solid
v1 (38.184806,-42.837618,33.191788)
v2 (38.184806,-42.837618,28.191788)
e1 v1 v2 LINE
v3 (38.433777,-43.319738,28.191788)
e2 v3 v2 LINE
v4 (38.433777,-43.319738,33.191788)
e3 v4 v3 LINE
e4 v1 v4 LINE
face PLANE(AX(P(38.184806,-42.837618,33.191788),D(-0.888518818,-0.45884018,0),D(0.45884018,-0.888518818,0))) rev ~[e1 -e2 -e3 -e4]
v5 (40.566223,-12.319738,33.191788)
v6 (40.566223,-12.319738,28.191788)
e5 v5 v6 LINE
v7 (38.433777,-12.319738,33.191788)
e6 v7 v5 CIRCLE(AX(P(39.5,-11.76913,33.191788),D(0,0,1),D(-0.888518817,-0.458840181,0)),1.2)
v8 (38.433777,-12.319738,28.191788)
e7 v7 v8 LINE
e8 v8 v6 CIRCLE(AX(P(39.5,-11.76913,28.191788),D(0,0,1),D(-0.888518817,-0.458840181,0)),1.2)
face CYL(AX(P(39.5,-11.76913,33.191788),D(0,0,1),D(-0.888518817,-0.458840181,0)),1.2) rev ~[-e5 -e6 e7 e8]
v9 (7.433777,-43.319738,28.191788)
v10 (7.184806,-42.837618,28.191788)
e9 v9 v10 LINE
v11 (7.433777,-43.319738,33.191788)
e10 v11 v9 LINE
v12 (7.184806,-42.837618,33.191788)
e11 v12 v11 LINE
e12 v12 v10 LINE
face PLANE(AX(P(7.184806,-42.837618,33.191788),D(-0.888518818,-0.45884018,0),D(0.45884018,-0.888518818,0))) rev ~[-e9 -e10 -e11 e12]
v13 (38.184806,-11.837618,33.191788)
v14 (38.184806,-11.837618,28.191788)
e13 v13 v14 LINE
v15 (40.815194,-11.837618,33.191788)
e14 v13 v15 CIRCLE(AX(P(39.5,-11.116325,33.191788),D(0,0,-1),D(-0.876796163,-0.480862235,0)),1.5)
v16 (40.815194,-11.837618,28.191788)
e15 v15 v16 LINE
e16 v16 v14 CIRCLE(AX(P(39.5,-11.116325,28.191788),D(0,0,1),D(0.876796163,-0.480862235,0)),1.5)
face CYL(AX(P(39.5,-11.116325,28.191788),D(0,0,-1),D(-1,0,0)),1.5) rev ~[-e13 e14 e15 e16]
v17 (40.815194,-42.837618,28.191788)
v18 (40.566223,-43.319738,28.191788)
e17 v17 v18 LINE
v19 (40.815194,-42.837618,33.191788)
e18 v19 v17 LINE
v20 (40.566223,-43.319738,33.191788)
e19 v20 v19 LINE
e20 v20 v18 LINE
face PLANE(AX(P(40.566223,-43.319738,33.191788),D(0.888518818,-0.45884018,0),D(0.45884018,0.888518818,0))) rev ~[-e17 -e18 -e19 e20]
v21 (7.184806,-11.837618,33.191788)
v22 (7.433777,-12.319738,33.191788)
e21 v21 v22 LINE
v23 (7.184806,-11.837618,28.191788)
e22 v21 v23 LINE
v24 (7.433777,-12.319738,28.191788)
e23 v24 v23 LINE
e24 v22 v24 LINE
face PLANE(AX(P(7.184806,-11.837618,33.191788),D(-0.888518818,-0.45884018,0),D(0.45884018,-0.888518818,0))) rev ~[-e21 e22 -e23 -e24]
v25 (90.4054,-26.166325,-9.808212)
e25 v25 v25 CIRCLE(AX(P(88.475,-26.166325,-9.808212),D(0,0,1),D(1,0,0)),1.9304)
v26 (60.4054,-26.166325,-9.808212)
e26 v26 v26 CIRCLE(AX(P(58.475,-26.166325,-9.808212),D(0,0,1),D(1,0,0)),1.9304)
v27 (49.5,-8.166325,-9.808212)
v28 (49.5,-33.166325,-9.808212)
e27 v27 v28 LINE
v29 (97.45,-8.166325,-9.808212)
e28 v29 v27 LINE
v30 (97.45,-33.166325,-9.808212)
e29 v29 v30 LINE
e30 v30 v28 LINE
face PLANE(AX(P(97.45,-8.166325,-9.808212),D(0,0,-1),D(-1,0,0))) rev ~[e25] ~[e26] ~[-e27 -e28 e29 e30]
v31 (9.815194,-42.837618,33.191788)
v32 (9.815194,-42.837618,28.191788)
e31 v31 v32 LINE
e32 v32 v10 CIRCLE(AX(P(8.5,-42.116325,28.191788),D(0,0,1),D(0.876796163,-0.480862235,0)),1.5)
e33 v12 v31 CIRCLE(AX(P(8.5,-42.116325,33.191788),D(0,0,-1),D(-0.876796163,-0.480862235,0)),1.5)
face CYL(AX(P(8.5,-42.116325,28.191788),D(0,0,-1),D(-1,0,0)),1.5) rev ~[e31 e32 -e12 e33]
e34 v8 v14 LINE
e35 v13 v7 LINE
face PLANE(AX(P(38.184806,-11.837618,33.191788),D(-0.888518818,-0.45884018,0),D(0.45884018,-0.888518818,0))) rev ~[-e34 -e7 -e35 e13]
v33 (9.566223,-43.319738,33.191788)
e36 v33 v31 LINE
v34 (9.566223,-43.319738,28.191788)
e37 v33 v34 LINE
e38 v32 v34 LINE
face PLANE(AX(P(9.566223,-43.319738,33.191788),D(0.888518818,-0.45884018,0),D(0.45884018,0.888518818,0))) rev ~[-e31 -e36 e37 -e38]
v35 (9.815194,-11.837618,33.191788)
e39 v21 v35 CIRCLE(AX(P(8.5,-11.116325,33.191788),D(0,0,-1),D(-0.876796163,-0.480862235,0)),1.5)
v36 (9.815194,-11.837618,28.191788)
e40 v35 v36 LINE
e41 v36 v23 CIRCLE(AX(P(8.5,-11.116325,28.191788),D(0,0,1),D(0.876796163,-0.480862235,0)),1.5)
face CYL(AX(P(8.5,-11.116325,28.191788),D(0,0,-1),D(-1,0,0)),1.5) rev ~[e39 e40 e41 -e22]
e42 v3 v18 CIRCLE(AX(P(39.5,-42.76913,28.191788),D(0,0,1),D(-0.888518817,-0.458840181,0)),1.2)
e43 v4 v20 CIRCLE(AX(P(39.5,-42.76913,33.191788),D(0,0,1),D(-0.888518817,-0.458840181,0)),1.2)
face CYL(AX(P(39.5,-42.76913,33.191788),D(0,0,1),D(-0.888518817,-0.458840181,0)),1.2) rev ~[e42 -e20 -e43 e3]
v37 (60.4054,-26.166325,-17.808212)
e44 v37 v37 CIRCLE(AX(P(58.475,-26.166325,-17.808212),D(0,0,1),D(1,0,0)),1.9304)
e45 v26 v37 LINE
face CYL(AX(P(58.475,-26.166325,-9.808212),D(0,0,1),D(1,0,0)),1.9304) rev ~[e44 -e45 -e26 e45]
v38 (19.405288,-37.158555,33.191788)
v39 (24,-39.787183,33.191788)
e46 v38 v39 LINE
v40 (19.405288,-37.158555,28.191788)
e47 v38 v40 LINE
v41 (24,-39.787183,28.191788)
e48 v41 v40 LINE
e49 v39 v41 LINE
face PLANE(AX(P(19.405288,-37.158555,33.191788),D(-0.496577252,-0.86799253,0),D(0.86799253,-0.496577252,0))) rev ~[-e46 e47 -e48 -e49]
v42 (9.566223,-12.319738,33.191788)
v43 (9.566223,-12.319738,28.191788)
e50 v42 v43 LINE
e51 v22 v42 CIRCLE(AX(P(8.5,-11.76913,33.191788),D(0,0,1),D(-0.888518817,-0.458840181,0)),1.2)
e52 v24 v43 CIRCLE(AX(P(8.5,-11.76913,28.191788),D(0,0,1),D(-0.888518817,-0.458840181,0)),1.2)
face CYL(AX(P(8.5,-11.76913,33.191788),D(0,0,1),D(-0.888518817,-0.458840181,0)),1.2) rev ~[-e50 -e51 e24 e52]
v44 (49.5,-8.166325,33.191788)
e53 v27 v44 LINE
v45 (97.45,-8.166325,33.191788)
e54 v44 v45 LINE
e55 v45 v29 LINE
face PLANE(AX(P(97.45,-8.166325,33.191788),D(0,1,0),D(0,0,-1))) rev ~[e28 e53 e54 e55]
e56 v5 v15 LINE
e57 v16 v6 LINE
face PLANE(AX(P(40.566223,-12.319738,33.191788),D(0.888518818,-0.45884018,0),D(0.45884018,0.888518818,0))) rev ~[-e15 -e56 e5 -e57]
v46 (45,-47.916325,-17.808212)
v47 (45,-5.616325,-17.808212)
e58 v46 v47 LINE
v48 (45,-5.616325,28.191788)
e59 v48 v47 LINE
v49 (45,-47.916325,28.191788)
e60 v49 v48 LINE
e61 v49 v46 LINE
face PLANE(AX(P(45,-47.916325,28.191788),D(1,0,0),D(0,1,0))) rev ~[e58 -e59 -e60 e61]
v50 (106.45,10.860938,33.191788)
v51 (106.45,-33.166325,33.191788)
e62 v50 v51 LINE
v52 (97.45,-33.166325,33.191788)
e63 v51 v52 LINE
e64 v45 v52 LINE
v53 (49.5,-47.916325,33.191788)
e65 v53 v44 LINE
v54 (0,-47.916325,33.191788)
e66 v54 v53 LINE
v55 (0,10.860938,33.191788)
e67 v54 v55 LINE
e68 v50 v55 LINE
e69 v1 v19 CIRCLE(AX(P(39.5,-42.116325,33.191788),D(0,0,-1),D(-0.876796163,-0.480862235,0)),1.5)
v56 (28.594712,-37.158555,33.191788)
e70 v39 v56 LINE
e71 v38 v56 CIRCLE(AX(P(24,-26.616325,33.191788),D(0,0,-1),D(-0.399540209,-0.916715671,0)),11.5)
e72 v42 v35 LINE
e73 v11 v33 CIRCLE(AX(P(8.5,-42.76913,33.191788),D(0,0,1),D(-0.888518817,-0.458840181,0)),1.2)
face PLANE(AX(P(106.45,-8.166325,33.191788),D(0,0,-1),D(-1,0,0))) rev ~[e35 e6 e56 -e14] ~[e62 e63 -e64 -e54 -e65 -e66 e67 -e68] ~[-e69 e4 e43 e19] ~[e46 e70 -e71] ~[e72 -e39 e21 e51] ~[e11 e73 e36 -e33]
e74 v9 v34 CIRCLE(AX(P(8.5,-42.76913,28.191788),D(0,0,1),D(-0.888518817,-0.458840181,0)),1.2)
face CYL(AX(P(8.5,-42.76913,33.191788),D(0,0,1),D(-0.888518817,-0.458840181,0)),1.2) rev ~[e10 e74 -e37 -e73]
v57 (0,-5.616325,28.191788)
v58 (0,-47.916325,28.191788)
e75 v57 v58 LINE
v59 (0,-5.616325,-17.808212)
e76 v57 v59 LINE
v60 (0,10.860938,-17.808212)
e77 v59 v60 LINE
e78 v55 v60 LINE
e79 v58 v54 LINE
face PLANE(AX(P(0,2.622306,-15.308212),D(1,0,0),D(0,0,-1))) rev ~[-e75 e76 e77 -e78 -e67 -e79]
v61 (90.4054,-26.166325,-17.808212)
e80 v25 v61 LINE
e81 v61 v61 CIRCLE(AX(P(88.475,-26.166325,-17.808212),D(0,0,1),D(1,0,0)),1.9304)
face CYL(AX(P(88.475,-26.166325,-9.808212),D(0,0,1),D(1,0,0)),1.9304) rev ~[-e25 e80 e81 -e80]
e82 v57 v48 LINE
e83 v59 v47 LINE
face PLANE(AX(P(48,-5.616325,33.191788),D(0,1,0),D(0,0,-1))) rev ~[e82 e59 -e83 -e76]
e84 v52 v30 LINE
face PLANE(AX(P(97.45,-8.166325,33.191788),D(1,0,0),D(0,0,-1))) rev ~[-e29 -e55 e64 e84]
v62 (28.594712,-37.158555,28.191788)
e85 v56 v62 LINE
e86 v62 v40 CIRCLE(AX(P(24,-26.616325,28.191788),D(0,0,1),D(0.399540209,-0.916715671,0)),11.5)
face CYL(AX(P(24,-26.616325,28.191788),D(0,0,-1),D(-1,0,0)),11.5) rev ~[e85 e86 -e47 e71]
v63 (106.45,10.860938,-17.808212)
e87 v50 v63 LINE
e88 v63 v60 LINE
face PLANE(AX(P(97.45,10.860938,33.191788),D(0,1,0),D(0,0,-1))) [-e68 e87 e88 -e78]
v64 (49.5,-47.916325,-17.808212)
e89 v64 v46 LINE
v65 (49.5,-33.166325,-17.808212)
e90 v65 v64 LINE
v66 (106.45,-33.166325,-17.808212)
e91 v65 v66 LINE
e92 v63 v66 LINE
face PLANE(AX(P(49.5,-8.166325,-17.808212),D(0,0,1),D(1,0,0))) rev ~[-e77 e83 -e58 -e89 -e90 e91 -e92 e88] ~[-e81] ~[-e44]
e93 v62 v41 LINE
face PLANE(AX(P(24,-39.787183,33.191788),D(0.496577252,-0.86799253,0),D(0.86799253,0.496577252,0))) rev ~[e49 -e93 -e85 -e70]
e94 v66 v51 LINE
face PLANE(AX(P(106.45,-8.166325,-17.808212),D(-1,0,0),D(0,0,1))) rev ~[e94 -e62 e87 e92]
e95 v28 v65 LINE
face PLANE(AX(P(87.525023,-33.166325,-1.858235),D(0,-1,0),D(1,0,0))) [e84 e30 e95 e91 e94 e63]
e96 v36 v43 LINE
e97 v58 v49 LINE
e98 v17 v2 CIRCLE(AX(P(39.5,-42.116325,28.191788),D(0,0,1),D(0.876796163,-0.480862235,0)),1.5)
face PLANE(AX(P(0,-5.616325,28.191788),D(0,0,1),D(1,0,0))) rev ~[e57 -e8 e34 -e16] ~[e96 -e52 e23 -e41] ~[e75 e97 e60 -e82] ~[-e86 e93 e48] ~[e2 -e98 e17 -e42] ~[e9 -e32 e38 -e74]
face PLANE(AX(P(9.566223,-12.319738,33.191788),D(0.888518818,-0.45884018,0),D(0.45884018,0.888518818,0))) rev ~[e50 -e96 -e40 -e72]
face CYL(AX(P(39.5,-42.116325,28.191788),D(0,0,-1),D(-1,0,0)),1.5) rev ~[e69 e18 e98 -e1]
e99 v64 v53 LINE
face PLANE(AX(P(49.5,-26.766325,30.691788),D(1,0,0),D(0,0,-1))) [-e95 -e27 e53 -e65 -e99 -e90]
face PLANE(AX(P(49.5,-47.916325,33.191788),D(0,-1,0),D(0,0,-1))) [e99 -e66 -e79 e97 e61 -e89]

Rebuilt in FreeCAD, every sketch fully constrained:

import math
import FreeCAD as App
import Part
import Sketcher
from FreeCAD import Vector


def edges_at(feature, points):
    """Names of the edges that pass closest to the given points."""
    edges = feature.Shape.Edges
    near = lambda p: min(range(len(edges)), key=lambda i: edges[i].distToShape(Part.Vertex(*p))[0])
    return sorted({f"Edge{near(p) + 1}" for p in points})

doc = App.newDocument("Part")
body = doc.addObject("PartDesign::Body", "Body")

# Sketch on XY plane
sketch1 = body.newObject("Sketcher::SketchObject", "Sketch")
sketch1.AttachmentSupport = (doc.getObject("XY_Plane"), [""])
sketch1.MapMode = "FlatFace"
sketch1.addGeometry(Part.LineSegment(Vector(0, 53, 0), Vector(0, 0, 0)), False)
sketch1.addGeometry(Part.LineSegment(Vector(0, 0, 0), Vector(48, 0, 0)), False)
sketch1.addGeometry(Part.LineSegment(Vector(48, 0, 0), Vector(48, 53, 0)), False)
sketch1.addGeometry(Part.LineSegment(Vector(48, 53, 0), Vector(0, 53, 0)), False)
sketch1.addConstraint(Sketcher.Constraint("Coincident", 0, 2, 1, 1))
sketch1.addConstraint(Sketcher.Constraint("Coincident", 1, 2, 2, 1))
sketch1.addConstraint(Sketcher.Constraint("Coincident", 2, 2, 3, 1))
sketch1.addConstraint(Sketcher.Constraint("Coincident", 3, 2, 0, 1))
sketch1.addConstraint(Sketcher.Constraint("Vertical", 0))
sketch1.addConstraint(Sketcher.Constraint("Horizontal", 1))
sketch1.addConstraint(Sketcher.Constraint("Vertical", 2))
sketch1.addConstraint(Sketcher.Constraint("Horizontal", 3))
sketch1.addConstraint(Sketcher.Constraint("Coincident", 0, 2, -1, 1))
sketch1.addConstraint(Sketcher.Constraint("DistanceX", 1, 1, 1, 2, 48.0))
sketch1.addConstraint(Sketcher.Constraint("DistanceY", 0, 2, 0, 1, 53.0))
pad1 = body.newObject("PartDesign::Pad", "Pad")
pad1.Profile = sketch1
pad1.Length = 10

# Sketch on XY plane
sketch2 = body.newObject("Sketcher::SketchObject", "Sketch001")
sketch2.AttachmentSupport = (doc.getObject("XY_Plane"), [""])
sketch2.MapMode = "FlatFace"
sketch2.addGeometry(Part.LineSegment(Vector(48, 0, 0), Vector(48, -6, 0)), False)
sketch2.addGeometry(Part.LineSegment(Vector(48, -6, 0), Vector(0, -6, 0)), False)
sketch2.addGeometry(Part.LineSegment(Vector(0, -6, 0), Vector(0, 0, 0)), False)
sketch2.addGeometry(Part.LineSegment(Vector(0, 0, 0), Vector(48, 0, 0)), False)
sketch2.addConstraint(Sketcher.Constraint("Coincident", 0, 2, 1, 1))
sketch2.addConstraint(Sketcher.Constraint("Coincident", 1, 2, 2, 1))
sketch2.addConstraint(Sketcher.Constraint("Coincident", 2, 2, 3, 1))
sketch2.addConstraint(Sketcher.Constraint("Coincident", 3, 2, 0, 1))
sketch2.addConstraint(Sketcher.Constraint("Vertical", 0))
sketch2.addConstraint(Sketcher.Constraint("Horizontal", 1))
sketch2.addConstraint(Sketcher.Constraint("Vertical", 2))
sketch2.addConstraint(Sketcher.Constraint("Horizontal", 3))
sketch2.addConstraint(Sketcher.Constraint("Coincident", 2, 2, -1, 1))
sketch2.addConstraint(Sketcher.Constraint("DistanceX", 1, 2, 1, 1, 48.0))
sketch2.addConstraint(Sketcher.Constraint("DistanceY", 0, 2, 0, 1, 5.616325))
pad2 = body.newObject("PartDesign::Pad", "Pad001")
pad2.Profile = sketch2
pad2.Length = 33.191788

# Sketch on XY plane
sketch3 = body.newObject("Sketcher::SketchObject", "Sketch002")
sketch3.AttachmentSupport = (doc.getObject("XY_Plane"), [""])
sketch3.MapMode = "FlatFace"
sketch3.AttachmentOffset = App.Placement(Vector(0, 0, 10), App.Rotation())
sketch3.addGeometry(Part.LineSegment(Vector(0, 53, 0), Vector(0, 43, 0)), False)
sketch3.addGeometry(Part.LineSegment(Vector(0, 43, 0), Vector(4, 43, 0)), False)
sketch3.addGeometry(Part.LineSegment(Vector(4, 43, 0), Vector(4, 53, 0)), False)
sketch3.addGeometry(Part.LineSegment(Vector(4, 53, 0), Vector(0, 53, 0)), False)
sketch3.addGeometry(Part.LineSegment(Vector(44, 53, 0), Vector(44, 43, 0)), False)
sketch3.addGeometry(Part.LineSegment(Vector(44, 43, 0), Vector(48, 43, 0)), False)
sketch3.addGeometry(Part.LineSegment(Vector(48, 43, 0), Vector(48, 53, 0)), False)
sketch3.addGeometry(Part.LineSegment(Vector(48, 53, 0), Vector(44, 53, 0)), False)
sketch3.addConstraint(Sketcher.Constraint("Coincident", 0, 2, 1, 1))
sketch3.addConstraint(Sketcher.Constraint("Coincident", 1, 2, 2, 1))
sketch3.addConstraint(Sketcher.Constraint("Coincident", 2, 2, 3, 1))
sketch3.addConstraint(Sketcher.Constraint("Coincident", 3, 2, 0, 1))
sketch3.addConstraint(Sketcher.Constraint("Coincident", 4, 2, 5, 1))
sketch3.addConstraint(Sketcher.Constraint("Coincident", 5, 2, 6, 1))
sketch3.addConstraint(Sketcher.Constraint("Coincident", 6, 2, 7, 1))
sketch3.addConstraint(Sketcher.Constraint("Coincident", 7, 2, 4, 1))
sketch3.addConstraint(Sketcher.Constraint("Vertical", 0))
sketch3.addConstraint(Sketcher.Constraint("Horizontal", 1))
sketch3.addConstraint(Sketcher.Constraint("Vertical", 2))
sketch3.addConstraint(Sketcher.Constraint("Horizontal", 3))
sketch3.addConstraint(Sketcher.Constraint("Vertical", 4))
sketch3.addConstraint(Sketcher.Constraint("Horizontal", 5))
sketch3.addConstraint(Sketcher.Constraint("Vertical", 6))
sketch3.addConstraint(Sketcher.Constraint("Horizontal", 7))
sketch3.addConstraint(Sketcher.Constraint("PointOnObject", 0, 2, -2))
sketch3.addConstraint(Sketcher.Constraint("Horizontal", 1, 2, 4, 2))
sketch3.addConstraint(Sketcher.Constraint("Horizontal", 3, 2, 6, 2))
sketch3.addConstraint(Sketcher.Constraint("Equal", 3, 5))
sketch3.addConstraint(Sketcher.Constraint("DistanceX", 1, 1, 1, 2, 4.0))
sketch3.addConstraint(Sketcher.Constraint("DistanceY", 0, 2, 0, 1, 10.0))
sketch3.addConstraint(Sketcher.Constraint("DistanceY", -1, 1, 0, 2, 43.0))
sketch3.addConstraint(Sketcher.Constraint("DistanceX", -1, 1, 4, 2, 44.0))
pad3 = body.newObject("PartDesign::Pad", "Pad002")
pad3.Profile = sketch3
pad3.Length = 40

# Sketch on XY plane
sketch4 = body.newObject("Sketcher::SketchObject", "Sketch003")
sketch4.AttachmentSupport = (doc.getObject("XY_Plane"), [""])
sketch4.MapMode = "FlatFace"
sketch4.AttachmentOffset = App.Placement(Vector(0, 0, 10), App.Rotation())
sketch4.addGeometry(Part.LineSegment(Vector(0, 11, 0), Vector(0, 0, 0)), False)
sketch4.addGeometry(Part.LineSegment(Vector(0, 0, 0), Vector(48, 0, 0)), False)
sketch4.addGeometry(Part.LineSegment(Vector(48, 0, 0), Vector(48, 11, 0)), False)
sketch4.addGeometry(Part.LineSegment(Vector(48, 11, 0), Vector(0, 11, 0)), False)
sketch4.addConstraint(Sketcher.Constraint("Coincident", 0, 2, 1, 1))
sketch4.addConstraint(Sketcher.Constraint("Coincident", 1, 2, 2, 1))
sketch4.addConstraint(Sketcher.Constraint("Coincident", 2, 2, 3, 1))
sketch4.addConstraint(Sketcher.Constraint("Coincident", 3, 2, 0, 1))
sketch4.addConstraint(Sketcher.Constraint("Vertical", 0))
sketch4.addConstraint(Sketcher.Constraint("Horizontal", 1))
sketch4.addConstraint(Sketcher.Constraint("Vertical", 2))
sketch4.addConstraint(Sketcher.Constraint("Horizontal", 3))
sketch4.addConstraint(Sketcher.Constraint("Coincident", 0, 2, -1, 1))
sketch4.addConstraint(Sketcher.Constraint("DistanceX", 1, 1, 1, 2, 48.0))
sketch4.addConstraint(Sketcher.Constraint("DistanceY", 0, 2, 0, 1, 10.860938))
pad4 = body.newObject("PartDesign::Pad", "Pad003")
pad4.Profile = sketch4
pad4.Length = 23.191788

# Sketch on XZ plane
sketch5 = body.newObject("Sketcher::SketchObject", "Sketch004")
sketch5.AttachmentSupport = (doc.getObject("XZ_Plane"), [""])
sketch5.MapMode = "FlatFace"
sketch5.AttachmentOffset = App.Placement(Vector(0, 0, 5.616325), App.Rotation())
sketch5.addGeometry(Part.LineSegment(Vector(0, 33, 0), Vector(0, 28, 0)), False)
sketch5.addGeometry(Part.LineSegment(Vector(0, 28, 0), Vector(48, 28, 0)), False)
sketch5.addGeometry(Part.LineSegment(Vector(48, 28, 0), Vector(48, 33, 0)), False)
sketch5.addGeometry(Part.LineSegment(Vector(48, 33, 0), Vector(0, 33, 0)), False)
sketch5.addConstraint(Sketcher.Constraint("Coincident", 0, 2, 1, 1))
sketch5.addConstraint(Sketcher.Constraint("Coincident", 1, 2, 2, 1))
sketch5.addConstraint(Sketcher.Constraint("Coincident", 2, 2, 3, 1))
sketch5.addConstraint(Sketcher.Constraint("Coincident", 3, 2, 0, 1))
sketch5.addConstraint(Sketcher.Constraint("Vertical", 0))
sketch5.addConstraint(Sketcher.Constraint("Horizontal", 1))
sketch5.addConstraint(Sketcher.Constraint("Vertical", 2))
sketch5.addConstraint(Sketcher.Constraint("Horizontal", 3))
sketch5.addConstraint(Sketcher.Constraint("PointOnObject", 0, 2, -2))
sketch5.addConstraint(Sketcher.Constraint("DistanceX", 1, 1, 1, 2, 48.0))
sketch5.addConstraint(Sketcher.Constraint("DistanceY", 0, 2, 0, 1, 5.0))
sketch5.addConstraint(Sketcher.Constraint("DistanceY", -1, 1, 0, 2, 28.191788))
pad5 = body.newObject("PartDesign::Pad", "Pad004")
pad5.Profile = sketch5
pad5.Length = 42.3

# Sketch on YZ plane
sketch6 = body.newObject("Sketcher::SketchObject", "Sketch005")
sketch6.AttachmentSupport = (doc.getObject("YZ_Plane"), [""])
sketch6.MapMode = "FlatFace"
sketch6.addGeometry(Part.LineSegment(Vector(11, -13, 0), Vector(-6, -13, 0)), False)
sketch6.addGeometry(Part.LineSegment(Vector(-6, -13, 0), Vector(-6, 0, 0)), False)
sketch6.addGeometry(Part.LineSegment(Vector(-6, 0, 0), Vector(11, 0, 0)), False)
sketch6.addGeometry(Part.LineSegment(Vector(11, 0, 0), Vector(11, -13, 0)), False)
sketch6.addConstraint(Sketcher.Constraint("Coincident", 0, 2, 1, 1))
sketch6.addConstraint(Sketcher.Constraint("Coincident", 1, 2, 2, 1))
sketch6.addConstraint(Sketcher.Constraint("Coincident", 2, 2, 3, 1))
sketch6.addConstraint(Sketcher.Constraint("Coincident", 3, 2, 0, 1))
sketch6.addConstraint(Sketcher.Constraint("Horizontal", 0))
sketch6.addConstraint(Sketcher.Constraint("Vertical", 1))
sketch6.addConstraint(Sketcher.Constraint("Horizontal", 2))
sketch6.addConstraint(Sketcher.Constraint("Vertical", 3))
sketch6.addConstraint(Sketcher.Constraint("PointOnObject", 1, 2, -1))
sketch6.addConstraint(Sketcher.Constraint("DistanceX", 0, 2, 0, 1, 16.477263))
sketch6.addConstraint(Sketcher.Constraint("DistanceY", 1, 1, 1, 2, 12.808212))
sketch6.addConstraint(Sketcher.Constraint("DistanceX", 0, 2, -1, 1, 5.616325))
pad6 = body.newObject("PartDesign::Pad", "Pad005")
pad6.Profile = sketch6
pad6.Length = 48

# Sketch on XY plane
sketch7 = body.newObject("Sketcher::SketchObject", "Sketch006")
sketch7.AttachmentSupport = (doc.getObject("XY_Plane"), [""])
sketch7.MapMode = "FlatFace"
sketch7.AttachmentOffset = App.Placement(Vector(0, 0, 28.191788), App.Rotation())
sketch7.addGeometry(Part.Circle(Vector(24, -27, 0), Vector(0, 0, 1), 12), False)
sketch7.addConstraint(Sketcher.Constraint("Diameter", 0, 23.0))
sketch7.addConstraint(Sketcher.Constraint("DistanceX", -1, 1, 0, 3, 24.0))
sketch7.addConstraint(Sketcher.Constraint("DistanceY", 0, 3, -1, 1, 26.616325))
pocket1 = body.newObject("PartDesign::Pocket", "Pocket")
pocket1.Profile = sketch7
pocket1.Type = "UpToFirst"
pocket1.Reversed = True

# Sketch on XY plane
sketch8 = body.newObject("Sketcher::SketchObject", "Sketch007")
sketch8.AttachmentSupport = (doc.getObject("XY_Plane"), [""])
sketch8.MapMode = "FlatFace"
sketch8.AttachmentOffset = App.Placement(Vector(0, 0, 28.191788), App.Rotation())
sketch8.addGeometry(Part.Circle(Vector(39.5, -11.1, 0), Vector(0, 0, 1), 1.5), False)
sketch8.addConstraint(Sketcher.Constraint("Diameter", 0, 3.0))
sketch8.addConstraint(Sketcher.Constraint("DistanceX", -1, 1, 0, 3, 39.5))
sketch8.addConstraint(Sketcher.Constraint("DistanceY", 0, 3, -1, 1, 11.116325))
pocket2 = body.newObject("PartDesign::Pocket", "Pocket001")
pocket2.Profile = sketch8
pocket2.Type = "UpToFirst"
pocket2.Reversed = True

# Sketch on XY plane
sketch9 = body.newObject("Sketcher::SketchObject", "Sketch008")
sketch9.AttachmentSupport = (doc.getObject("XY_Plane"), [""])
sketch9.MapMode = "FlatFace"
sketch9.AttachmentOffset = App.Placement(Vector(0, 0, 28.191788), App.Rotation())
sketch9.addGeometry(Part.Circle(Vector(39.5, -42.1, 0), Vector(0, 0, 1), 1.5), False)
sketch9.addConstraint(Sketcher.Constraint("Diameter", 0, 3.0))
sketch9.addConstraint(Sketcher.Constraint("DistanceX", -1, 1, 0, 3, 39.5))
sketch9.addConstraint(Sketcher.Constraint("DistanceY", 0, 3, -1, 1, 42.116325))
pocket3 = body.newObject("PartDesign::Pocket", "Pocket002")
pocket3.Profile = sketch9
pocket3.Type = "UpToFirst"
pocket3.Reversed = True

# Sketch on XY plane
sketch10 = body.newObject("Sketcher::SketchObject", "Sketch009")
sketch10.AttachmentSupport = (doc.getObject("XY_Plane"), [""])
sketch10.MapMode = "FlatFace"
sketch10.AttachmentOffset = App.Placement(Vector(0, 0, 28.191788), App.Rotation())
sketch10.addGeometry(Part.Circle(Vector(8.5, -11.1, 0), Vector(0, 0, 1), 1.5), False)
sketch10.addConstraint(Sketcher.Constraint("Diameter", 0, 3.0))
sketch10.addConstraint(Sketcher.Constraint("DistanceX", -1, 1, 0, 3, 8.5))
sketch10.addConstraint(Sketcher.Constraint("DistanceY", 0, 3, -1, 1, 11.116325))
pocket4 = body.newObject("PartDesign::Pocket", "Pocket003")
pocket4.Profile = sketch10
pocket4.Type = "UpToFirst"
pocket4.Reversed = True

# Sketch on XY plane
sketch11 = body.newObject("Sketcher::SketchObject", "Sketch010")
sketch11.AttachmentSupport = (doc.getObject("XY_Plane"), [""])
sketch11.MapMode = "FlatFace"
sketch11.AttachmentOffset = App.Placement(Vector(0, 0, 28.191788), App.Rotation())
sketch11.addGeometry(Part.Circle(Vector(8.5, -42.1, 0), Vector(0, 0, 1), 1.5), False)
sketch11.addConstraint(Sketcher.Constraint("Diameter", 0, 3.0))
sketch11.addConstraint(Sketcher.Constraint("DistanceX", -1, 1, 0, 3, 8.5))
sketch11.addConstraint(Sketcher.Constraint("DistanceY", 0, 3, -1, 1, 42.116325))
pocket5 = body.newObject("PartDesign::Pocket", "Pocket004")
pocket5.Profile = sketch11
pocket5.Type = "UpToFirst"
pocket5.Reversed = True
doc.recompute()

fillet = body.newObject("PartDesign::Fillet", "Fillet")
fillet.Base = (pocket5, edges_at(pocket5, [(24, 10.861, 0)]))
fillet.Radius = 10
doc.recompute()

fillet2 = body.newObject("PartDesign::Fillet", "Fillet001")
fillet2.Base = (fillet, edges_at(fillet, [(2, 43, 10), (46, 43, 10)]))
fillet2.Radius = 4

# Sketch on YZ plane
sketch12 = body.newObject("Sketcher::SketchObject", "Sketch011")
sketch12.AttachmentSupport = (doc.getObject("YZ_Plane"), [""])
sketch12.MapMode = "FlatFace"
sketch12.AttachmentOffset = App.Placement(Vector(0, 0, 48), App.Rotation())
sketch12.addGeometry(Part.LineSegment(Vector(11, -13, 0), Vector(-6, -13, 0)), False)
sketch12.addGeometry(Part.LineSegment(Vector(-6, -13, 0), Vector(-6, -18, 0)), False)
sketch12.addGeometry(Part.LineSegment(Vector(-6, -18, 0), Vector(11, -18, 0)), False)
sketch12.addGeometry(Part.LineSegment(Vector(11, -18, 0), Vector(11, -13, 0)), False)
sketch12.addConstraint(Sketcher.Constraint("Coincident", 0, 2, 1, 1))
sketch12.addConstraint(Sketcher.Constraint("Coincident", 1, 2, 2, 1))
sketch12.addConstraint(Sketcher.Constraint("Coincident", 2, 2, 3, 1))
sketch12.addConstraint(Sketcher.Constraint("Coincident", 3, 2, 0, 1))
sketch12.addConstraint(Sketcher.Constraint("Horizontal", 0))
sketch12.addConstraint(Sketcher.Constraint("Vertical", 1))
sketch12.addConstraint(Sketcher.Constraint("Horizontal", 2))
sketch12.addConstraint(Sketcher.Constraint("Vertical", 3))
sketch12.addConstraint(Sketcher.Constraint("DistanceY", 1, 2, 1, 1, 5.0))
sketch12.addConstraint(Sketcher.Constraint("DistanceX", 0, 2, 0, 1, 16.477263))
sketch12.addConstraint(Sketcher.Constraint("DistanceX", 0, 2, -1, 1, 5.616325))
sketch12.addConstraint(Sketcher.Constraint("DistanceY", 0, 2, -1, 1, 12.808212))
pad7 = body.newObject("PartDesign::Pad", "Pad006")
pad7.Profile = sketch12
pad7.Length = 48
pad7.Reversed = True

# Sketch on YZ plane
sketch13 = body.newObject("Sketcher::SketchObject", "Sketch012")
sketch13.AttachmentSupport = (doc.getObject("YZ_Plane"), [""])
sketch13.MapMode = "FlatFace"
sketch13.AttachmentOffset = App.Placement(Vector(0, 0, 48), App.Rotation())
sketch13.addGeometry(Part.LineSegment(Vector(11, 33, 0), Vector(11, -18, 0)), False)
sketch13.addGeometry(Part.LineSegment(Vector(11, -18, 0), Vector(71, -27, 0)), False)
sketch13.addGeometry(Part.LineSegment(Vector(71, -27, 0), Vector(74, 51, 0)), False)
sketch13.addGeometry(Part.LineSegment(Vector(74, 51, 0), Vector(44, 77, 0)), False)
sketch13.addGeometry(Part.LineSegment(Vector(44, 77, 0), Vector(11, 33, 0)), False)
sketch13.addConstraint(Sketcher.Constraint("Coincident", 0, 2, 1, 1))
sketch13.addConstraint(Sketcher.Constraint("Coincident", 1, 2, 2, 1))
sketch13.addConstraint(Sketcher.Constraint("Coincident", 2, 2, 3, 1))
sketch13.addConstraint(Sketcher.Constraint("Coincident", 3, 2, 4, 1))
sketch13.addConstraint(Sketcher.Constraint("Coincident", 4, 2, 0, 1))
sketch13.addConstraint(Sketcher.Constraint("Vertical", 0))
sketch13.addConstraint(Sketcher.Constraint("DistanceY", 0, 2, 0, 1, 51.0))
sketch13.addConstraint(Sketcher.Constraint("Distance", 1, 60.973368))
sketch13.addConstraint(Sketcher.Constraint("DistanceX", 0, 2, 1, 2, 60.244549))
sketch13.addConstraint(Sketcher.Constraint("DistanceY", 1, 2, 2, 2, 78.00156))
sketch13.addConstraint(Sketcher.Constraint("DistanceX", 3, 2, 2, 2, 30.534419))
sketch13.addConstraint(Sketcher.Constraint("DistanceY", 2, 2, 3, 2, 26.093049))
sketch13.addConstraint(Sketcher.Constraint("DistanceX", 0, 2, 3, 2, 33.041158))
sketch13.addConstraint(Sketcher.Constraint("DistanceX", -1, 1, 0, 2, 10.860938))
sketch13.addConstraint(Sketcher.Constraint("DistanceY", 0, 2, -1, 1, 17.808212))
pocket6 = body.newObject("PartDesign::Pocket", "Pocket005")
pocket6.Profile = sketch13
pocket6.Type = "ThroughAll"

# Sketch on YZ plane
sketch14 = body.newObject("Sketcher::SketchObject", "Sketch013")
sketch14.AttachmentSupport = (doc.getObject("YZ_Plane"), [""])
sketch14.MapMode = "FlatFace"
sketch14.AttachmentOffset = App.Placement(Vector(0, 0, 48), App.Rotation())
sketch14.addGeometry(Part.LineSegment(Vector(11, 33, 0), Vector(-6, 33, 0)), False)
sketch14.addGeometry(Part.LineSegment(Vector(-6, 33, 0), Vector(-6, -18, 0)), False)
sketch14.addGeometry(Part.LineSegment(Vector(-6, -18, 0), Vector(11, -18, 0)), False)
sketch14.addGeometry(Part.LineSegment(Vector(11, -18, 0), Vector(11, 33, 0)), False)
sketch14.addConstraint(Sketcher.Constraint("Coincident", 0, 2, 1, 1))
sketch14.addConstraint(Sketcher.Constraint("Coincident", 1, 2, 2, 1))
sketch14.addConstraint(Sketcher.Constraint("Coincident", 2, 2, 3, 1))
sketch14.addConstraint(Sketcher.Constraint("Coincident", 3, 2, 0, 1))
sketch14.addConstraint(Sketcher.Constraint("Horizontal", 0))
sketch14.addConstraint(Sketcher.Constraint("Vertical", 1))
sketch14.addConstraint(Sketcher.Constraint("Horizontal", 2))
sketch14.addConstraint(Sketcher.Constraint("Vertical", 3))
sketch14.addConstraint(Sketcher.Constraint("DistanceY", 1, 2, 1, 1, 51.0))
sketch14.addConstraint(Sketcher.Constraint("DistanceX", 0, 2, 0, 1, 16.477263))
sketch14.addConstraint(Sketcher.Constraint("DistanceX", 0, 2, -1, 1, 5.616325))
sketch14.addConstraint(Sketcher.Constraint("DistanceY", -1, 1, 0, 2, 33.191788))
pad8 = body.newObject("PartDesign::Pad", "Pad007")
pad8.Profile = sketch14
pad8.Length = 49.45

# Sketch on XY plane
sketch15 = body.newObject("Sketcher::SketchObject", "Sketch014")
sketch15.AttachmentSupport = (doc.getObject("XY_Plane"), [""])
sketch15.MapMode = "FlatFace"
sketch15.AttachmentOffset = App.Placement(Vector(0, 0, 28.191788), App.Rotation())
sketch15.addGeometry(Part.LineSegment(Vector(45, -47.9, 0), Vector(45, -5.6, 0)), False)
sketch15.addGeometry(Part.LineSegment(Vector(45, -5.6, 0), Vector(49.5, -5.6, 0)), False)
sketch15.addGeometry(Part.LineSegment(Vector(49.5, -5.6, 0), Vector(49.5, -47.9, 0)), False)
sketch15.addGeometry(Part.LineSegment(Vector(49.5, -47.9, 0), Vector(45, -47.9, 0)), False)
sketch15.addConstraint(Sketcher.Constraint("Coincident", 0, 2, 1, 1))
sketch15.addConstraint(Sketcher.Constraint("Coincident", 1, 2, 2, 1))
sketch15.addConstraint(Sketcher.Constraint("Coincident", 2, 2, 3, 1))
sketch15.addConstraint(Sketcher.Constraint("Coincident", 3, 2, 0, 1))
sketch15.addConstraint(Sketcher.Constraint("Vertical", 0))
sketch15.addConstraint(Sketcher.Constraint("Horizontal", 1))
sketch15.addConstraint(Sketcher.Constraint("Vertical", 2))
sketch15.addConstraint(Sketcher.Constraint("Horizontal", 3))
sketch15.addConstraint(Sketcher.Constraint("DistanceX", 1, 1, 1, 2, 4.5))
sketch15.addConstraint(Sketcher.Constraint("DistanceY", 0, 1, 0, 2, 42.3))
sketch15.addConstraint(Sketcher.Constraint("DistanceX", -1, 1, 0, 2, 45.0))
sketch15.addConstraint(Sketcher.Constraint("DistanceY", 0, 2, -1, 1, 5.616325))
pad9 = body.newObject("PartDesign::Pad", "Pad008")
pad9.Profile = sketch15
pad9.Length = 46
pad9.Reversed = True

# Sketch on XZ plane
sketch16 = body.newObject("Sketcher::SketchObject", "Sketch015")
sketch16.AttachmentSupport = (doc.getObject("XZ_Plane"), [""])
sketch16.MapMode = "FlatFace"
sketch16.AttachmentOffset = App.Placement(Vector(0, 0, 5.616325), App.Rotation())
sketch16.addGeometry(Part.LineSegment(Vector(50, 33, 0), Vector(50, -18, 0)), False)
sketch16.addGeometry(Part.LineSegment(Vector(50, -18, 0), Vector(97, -18, 0)), False)
sketch16.addGeometry(Part.LineSegment(Vector(97, -18, 0), Vector(97, 33, 0)), False)
sketch16.addGeometry(Part.LineSegment(Vector(97, 33, 0), Vector(50, 33, 0)), False)
sketch16.addConstraint(Sketcher.Constraint("Coincident", 0, 2, 1, 1))
sketch16.addConstraint(Sketcher.Constraint("Coincident", 1, 2, 2, 1))
sketch16.addConstraint(Sketcher.Constraint("Coincident", 2, 2, 3, 1))
sketch16.addConstraint(Sketcher.Constraint("Coincident", 3, 2, 0, 1))
sketch16.addConstraint(Sketcher.Constraint("Vertical", 0))
sketch16.addConstraint(Sketcher.Constraint("Horizontal", 1))
sketch16.addConstraint(Sketcher.Constraint("Vertical", 2))
sketch16.addConstraint(Sketcher.Constraint("Horizontal", 3))
sketch16.addConstraint(Sketcher.Constraint("DistanceY", 0, 2, 0, 1, 51.0))
sketch16.addConstraint(Sketcher.Constraint("DistanceX", 1, 1, 1, 2, 47.95))
sketch16.addConstraint(Sketcher.Constraint("DistanceX", -1, 1, 0, 2, 49.5))
sketch16.addConstraint(Sketcher.Constraint("DistanceY", 0, 2, -1, 1, 17.808212))
pad10 = body.newObject("PartDesign::Pad", "Pad009")
pad10.Profile = sketch16
pad10.Length = 2.55

# Sketch on YZ plane
sketch17 = body.newObject("Sketcher::SketchObject", "Sketch016")
sketch17.AttachmentSupport = (doc.getObject("YZ_Plane"), [""])
sketch17.MapMode = "FlatFace"
sketch17.AttachmentOffset = App.Placement(Vector(0, 0, 49.5), App.Rotation())
sketch17.addGeometry(Part.LineSegment(Vector(-6, 33, 0), Vector(-48, 33, 0)), False)
sketch17.addGeometry(Part.LineSegment(Vector(-48, 33, 0), Vector(-48, 28, 0)), False)
sketch17.addGeometry(Part.LineSegment(Vector(-48, 28, 0), Vector(-6, 28, 0)), False)
sketch17.addGeometry(Part.LineSegment(Vector(-6, 28, 0), Vector(-6, 33, 0)), False)
sketch17.addConstraint(Sketcher.Constraint("Coincident", 0, 2, 1, 1))
sketch17.addConstraint(Sketcher.Constraint("Coincident", 1, 2, 2, 1))
sketch17.addConstraint(Sketcher.Constraint("Coincident", 2, 2, 3, 1))
sketch17.addConstraint(Sketcher.Constraint("Coincident", 3, 2, 0, 1))
sketch17.addConstraint(Sketcher.Constraint("Horizontal", 0))
sketch17.addConstraint(Sketcher.Constraint("Vertical", 1))
sketch17.addConstraint(Sketcher.Constraint("Horizontal", 2))
sketch17.addConstraint(Sketcher.Constraint("Vertical", 3))
sketch17.addConstraint(Sketcher.Constraint("DistanceY", 1, 2, 1, 1, 5.0))
sketch17.addConstraint(Sketcher.Constraint("DistanceX", 0, 2, 0, 1, 42.3))
sketch17.addConstraint(Sketcher.Constraint("DistanceX", 0, 2, -1, 1, 47.916325))
sketch17.addConstraint(Sketcher.Constraint("DistanceY", -1, 1, 0, 2, 33.191788))
pad11 = body.newObject("PartDesign::Pad", "Pad010")
pad11.Profile = sketch17
pad11.Length = 1.5
pad11.Reversed = True

# Sketch on YZ plane
sketch18 = body.newObject("Sketcher::SketchObject", "Sketch017")
sketch18.AttachmentSupport = (doc.getObject("YZ_Plane"), [""])
sketch18.MapMode = "FlatFace"
sketch18.AttachmentOffset = App.Placement(Vector(0, 0, 97.45), App.Rotation())
sketch18.addGeometry(Part.LineSegment(Vector(11, 33, 0), Vector(-8, 33, 0)), False)
sketch18.addGeometry(Part.LineSegment(Vector(-8, 33, 0), Vector(-8, -18, 0)), False)
sketch18.addGeometry(Part.LineSegment(Vector(-8, -18, 0), Vector(11, -18, 0)), False)
sketch18.addGeometry(Part.LineSegment(Vector(11, -18, 0), Vector(11, 33, 0)), False)
sketch18.addConstraint(Sketcher.Constraint("Coincident", 0, 2, 1, 1))
sketch18.addConstraint(Sketcher.Constraint("Coincident", 1, 2, 2, 1))
sketch18.addConstraint(Sketcher.Constraint("Coincident", 2, 2, 3, 1))
sketch18.addConstraint(Sketcher.Constraint("Coincident", 3, 2, 0, 1))
sketch18.addConstraint(Sketcher.Constraint("Horizontal", 0))
sketch18.addConstraint(Sketcher.Constraint("Vertical", 1))
sketch18.addConstraint(Sketcher.Constraint("Horizontal", 2))
sketch18.addConstraint(Sketcher.Constraint("Vertical", 3))
sketch18.addConstraint(Sketcher.Constraint("DistanceY", 1, 2, 1, 1, 51.0))
sketch18.addConstraint(Sketcher.Constraint("DistanceX", 0, 2, 0, 1, 19.027262))
sketch18.addConstraint(Sketcher.Constraint("DistanceX", 0, 2, -1, 1, 8.166325))
sketch18.addConstraint(Sketcher.Constraint("DistanceY", -1, 1, 0, 2, 33.191788))
pad12 = body.newObject("PartDesign::Pad", "Pad011")
pad12.Profile = sketch18
pad12.Length = 9

# Sketch on XZ plane
sketch19 = body.newObject("Sketcher::SketchObject", "Sketch018")
sketch19.AttachmentSupport = (doc.getObject("XZ_Plane"), [""])
sketch19.MapMode = "FlatFace"
sketch19.AttachmentOffset = App.Placement(Vector(0, 0, 8.166325), App.Rotation())
sketch19.addGeometry(Part.LineSegment(Vector(50, -18, 0), Vector(106, -18, 0)), False)
sketch19.addGeometry(Part.LineSegment(Vector(106, -18, 0), Vector(106, 33, 0)), False)
sketch19.addGeometry(Part.LineSegment(Vector(106, 33, 0), Vector(97, 33, 0)), False)
sketch19.addGeometry(Part.LineSegment(Vector(97, 33, 0), Vector(97, -10, 0)), False)
sketch19.addGeometry(Part.LineSegment(Vector(97, -10, 0), Vector(50, -10, 0)), False)
sketch19.addGeometry(Part.LineSegment(Vector(50, -10, 0), Vector(50, -18, 0)), False)
sketch19.addConstraint(Sketcher.Constraint("Coincident", 0, 2, 1, 1))
sketch19.addConstraint(Sketcher.Constraint("Coincident", 1, 2, 2, 1))
sketch19.addConstraint(Sketcher.Constraint("Coincident", 2, 2, 3, 1))
sketch19.addConstraint(Sketcher.Constraint("Coincident", 3, 2, 4, 1))
sketch19.addConstraint(Sketcher.Constraint("Coincident", 4, 2, 5, 1))
sketch19.addConstraint(Sketcher.Constraint("Coincident", 5, 2, 0, 1))
sketch19.addConstraint(Sketcher.Constraint("Horizontal", 0))
sketch19.addConstraint(Sketcher.Constraint("Vertical", 1))
sketch19.addConstraint(Sketcher.Constraint("Horizontal", 2))
sketch19.addConstraint(Sketcher.Constraint("Vertical", 3))
sketch19.addConstraint(Sketcher.Constraint("Horizontal", 4))
sketch19.addConstraint(Sketcher.Constraint("Vertical", 5))
sketch19.addConstraint(Sketcher.Constraint("DistanceX", 2, 2, 2, 1, 9.0))
sketch19.addConstraint(Sketcher.Constraint("DistanceY", 1, 1, 1, 2, 51.0))
sketch19.addConstraint(Sketcher.Constraint("DistanceY", 3, 2, 3, 1, 43.0))
sketch19.addConstraint(Sketcher.Constraint("DistanceX", 0, 1, 0, 2, 56.95))
sketch19.addConstraint(Sketcher.Constraint("DistanceX", -1, 1, 4, 2, 49.5))
sketch19.addConstraint(Sketcher.Constraint("DistanceY", 0, 2, -1, 1, 17.808212))
pad13 = body.newObject("PartDesign::Pad", "Pad012")
pad13.Profile = sketch19
pad13.Length = 25

# Sketch on XY plane
sketch20 = body.newObject("Sketcher::SketchObject", "Sketch019")
sketch20.AttachmentSupport = (doc.getObject("XY_Plane"), [""])
sketch20.MapMode = "FlatFace"
sketch20.AttachmentOffset = App.Placement(Vector(0, 0, -9.808212), App.Rotation())
sketch20.addGeometry(Part.Circle(Vector(58.5, -26.2, 0), Vector(0, 0, 1), 1.9), False)
sketch20.addGeometry(Part.Circle(Vector(88.5, -26.2, 0), Vector(0, 0, 1), 1.9), False)
sketch20.addConstraint(Sketcher.Constraint("Equal", 0, 1))
sketch20.addConstraint(Sketcher.Constraint("Horizontal", 0, 3, 1, 3))
sketch20.addConstraint(Sketcher.Constraint("DistanceX", 0, 3, 1, 3, 30.0))
sketch20.addConstraint(Sketcher.Constraint("Diameter", 0, 3.8608))
sketch20.addConstraint(Sketcher.Constraint("DistanceX", -1, 1, 0, 3, 58.475))
sketch20.addConstraint(Sketcher.Constraint("DistanceY", 0, 3, -1, 1, 26.166325))
pocket7 = body.newObject("PartDesign::Pocket", "Pocket006")
pocket7.Profile = sketch20
pocket7.Type = "ThroughAll"

# Sketch on XY plane
sketch21 = body.newObject("Sketcher::SketchObject", "Sketch020")
sketch21.AttachmentSupport = (doc.getObject("XY_Plane"), [""])
sketch21.MapMode = "FlatFace"
sketch21.AttachmentOffset = App.Placement(Vector(0, 0, 33.191788), App.Rotation())
sketch21.addGeometry(Part.LineSegment(Vector(7.2, -11.8, 0), Vector(7.4, -12.3, 0)), False)
sketch21.addGeometry(Part.ArcOfCircle(Part.Circle(Vector(8.5, -11.8, 0), Vector(0, 0, 1), 1.2), math.radians(-153), math.radians(-27)), False)
sketch21.addGeometry(Part.LineSegment(Vector(9.6, -12.3, 0), Vector(9.8, -11.8, 0)), False)
sketch21.addGeometry(Part.ArcOfCircle(Part.Circle(Vector(8.5, -11.1, 0), Vector(0, 0, 1), 1.5), math.radians(-151), math.radians(-29)), False)
sketch21.addConstraint(Sketcher.Constraint("Tangent", 0, 2, 1, 1))
sketch21.addConstraint(Sketcher.Constraint("Tangent", 1, 2, 2, 1))
sketch21.addConstraint(Sketcher.Constraint("Coincident", 2, 2, 3, 2))
sketch21.addConstraint(Sketcher.Constraint("Coincident", 3, 1, 0, 1))
sketch21.addConstraint(Sketcher.Constraint("Horizontal", 0, 2, 1, 2))
sketch21.addConstraint(Sketcher.Constraint("Horizontal", 2, 2, 3, 1))
sketch21.addConstraint(Sketcher.Constraint("Radius", 1, 1.2))
sketch21.addConstraint(Sketcher.Constraint("Radius", 3, 1.5))
sketch21.addConstraint(Sketcher.Constraint("DistanceX", -1, 1, 1, 3, 8.5))
sketch21.addConstraint(Sketcher.Constraint("Distance", 0, 0.542611))
sketch21.addConstraint(Sketcher.Constraint("DistanceY", 1, 3, -1, 1, 11.76913))
sketch21.addConstraint(Sketcher.Constraint("DistanceY", 0, 2, -1, 1, 12.319738))
pocket8 = body.newObject("PartDesign::Pocket", "Pocket007")
pocket8.Profile = sketch21
pocket8.Type = "UpToFirst"

# Sketch on XY plane
sketch22 = body.newObject("Sketcher::SketchObject", "Sketch021")
sketch22.AttachmentSupport = (doc.getObject("XY_Plane"), [""])
sketch22.MapMode = "FlatFace"
sketch22.AttachmentOffset = App.Placement(Vector(0, 0, 33.191788), App.Rotation())
sketch22.addGeometry(Part.LineSegment(Vector(7.2, -42.8, 0), Vector(7.4, -43.3, 0)), False)
sketch22.addGeometry(Part.ArcOfCircle(Part.Circle(Vector(8.5, -42.8, 0), Vector(0, 0, 1), 1.2), math.radians(-153), math.radians(-27)), False)
sketch22.addGeometry(Part.LineSegment(Vector(9.6, -43.3, 0), Vector(9.8, -42.8, 0)), False)
sketch22.addGeometry(Part.ArcOfCircle(Part.Circle(Vector(8.5, -42.1, 0), Vector(0, 0, 1), 1.5), math.radians(-151), math.radians(-29)), False)
sketch22.addConstraint(Sketcher.Constraint("Tangent", 0, 2, 1, 1))
sketch22.addConstraint(Sketcher.Constraint("Tangent", 1, 2, 2, 1))
sketch22.addConstraint(Sketcher.Constraint("Coincident", 2, 2, 3, 2))
sketch22.addConstraint(Sketcher.Constraint("Coincident", 3, 1, 0, 1))
sketch22.addConstraint(Sketcher.Constraint("Horizontal", 0, 2, 1, 2))
sketch22.addConstraint(Sketcher.Constraint("Horizontal", 2, 2, 3, 1))
sketch22.addConstraint(Sketcher.Constraint("Radius", 1, 1.2))
sketch22.addConstraint(Sketcher.Constraint("Radius", 3, 1.5))
sketch22.addConstraint(Sketcher.Constraint("DistanceX", -1, 1, 1, 3, 8.5))
sketch22.addConstraint(Sketcher.Constraint("Distance", 0, 0.542611))
sketch22.addConstraint(Sketcher.Constraint("DistanceY", 1, 3, -1, 1, 42.76913))
sketch22.addConstraint(Sketcher.Constraint("DistanceY", 0, 2, -1, 1, 43.319738))
pocket9 = body.newObject("PartDesign::Pocket", "Pocket008")
pocket9.Profile = sketch22
pocket9.Type = "UpToFirst"

# Sketch on XY plane
sketch23 = body.newObject("Sketcher::SketchObject", "Sketch022")
sketch23.AttachmentSupport = (doc.getObject("XY_Plane"), [""])
sketch23.MapMode = "FlatFace"
sketch23.AttachmentOffset = App.Placement(Vector(0, 0, 33.191788), App.Rotation())
sketch23.addGeometry(Part.LineSegment(Vector(38.2, -42.8, 0), Vector(38.4, -43.3, 0)), False)
sketch23.addGeometry(Part.ArcOfCircle(Part.Circle(Vector(39.5, -42.8, 0), Vector(0, 0, 1), 1.2), math.radians(-153), math.radians(-27)), False)
sketch23.addGeometry(Part.LineSegment(Vector(40.6, -43.3, 0), Vector(40.8, -42.8, 0)), False)
sketch23.addGeometry(Part.ArcOfCircle(Part.Circle(Vector(39.5, -42.1, 0), Vector(0, 0, 1), 1.5), math.radians(-151), math.radians(-29)), False)
sketch23.addConstraint(Sketcher.Constraint("Tangent", 0, 2, 1, 1))
sketch23.addConstraint(Sketcher.Constraint("Tangent", 1, 2, 2, 1))
sketch23.addConstraint(Sketcher.Constraint("Coincident", 2, 2, 3, 2))
sketch23.addConstraint(Sketcher.Constraint("Coincident", 3, 1, 0, 1))
sketch23.addConstraint(Sketcher.Constraint("Horizontal", 0, 2, 1, 2))
sketch23.addConstraint(Sketcher.Constraint("Horizontal", 2, 2, 3, 1))
sketch23.addConstraint(Sketcher.Constraint("Radius", 1, 1.2))
sketch23.addConstraint(Sketcher.Constraint("Radius", 3, 1.5))
sketch23.addConstraint(Sketcher.Constraint("DistanceX", -1, 1, 1, 3, 39.5))
sketch23.addConstraint(Sketcher.Constraint("Distance", 0, 0.542611))
sketch23.addConstraint(Sketcher.Constraint("DistanceY", 1, 3, -1, 1, 42.76913))
sketch23.addConstraint(Sketcher.Constraint("DistanceY", 0, 2, -1, 1, 43.319738))
pocket10 = body.newObject("PartDesign::Pocket", "Pocket009")
pocket10.Profile = sketch23
pocket10.Type = "UpToFirst"

# Sketch on XY plane
sketch24 = body.newObject("Sketcher::SketchObject", "Sketch023")
sketch24.AttachmentSupport = (doc.getObject("XY_Plane"), [""])
sketch24.MapMode = "FlatFace"
sketch24.AttachmentOffset = App.Placement(Vector(0, 0, 33.191788), App.Rotation())
sketch24.addGeometry(Part.LineSegment(Vector(38.2, -11.8, 0), Vector(38.4, -12.3, 0)), False)
sketch24.addGeometry(Part.ArcOfCircle(Part.Circle(Vector(39.5, -11.8, 0), Vector(0, 0, 1), 1.2), math.radians(-153), math.radians(-27)), False)
sketch24.addGeometry(Part.LineSegment(Vector(40.6, -12.3, 0), Vector(40.8, -11.8, 0)), False)
sketch24.addGeometry(Part.ArcOfCircle(Part.Circle(Vector(39.5, -11.1, 0), Vector(0, 0, 1), 1.5), math.radians(-151), math.radians(-29)), False)
sketch24.addConstraint(Sketcher.Constraint("Tangent", 0, 2, 1, 1))
sketch24.addConstraint(Sketcher.Constraint("Tangent", 1, 2, 2, 1))
sketch24.addConstraint(Sketcher.Constraint("Coincident", 2, 2, 3, 2))
sketch24.addConstraint(Sketcher.Constraint("Coincident", 3, 1, 0, 1))
sketch24.addConstraint(Sketcher.Constraint("Horizontal", 0, 2, 1, 2))
sketch24.addConstraint(Sketcher.Constraint("Horizontal", 2, 2, 3, 1))
sketch24.addConstraint(Sketcher.Constraint("Radius", 1, 1.2))
sketch24.addConstraint(Sketcher.Constraint("Radius", 3, 1.5))
sketch24.addConstraint(Sketcher.Constraint("DistanceX", -1, 1, 1, 3, 39.5))
sketch24.addConstraint(Sketcher.Constraint("Distance", 0, 0.542611))
sketch24.addConstraint(Sketcher.Constraint("DistanceY", 1, 3, -1, 1, 11.76913))
sketch24.addConstraint(Sketcher.Constraint("DistanceY", 0, 2, -1, 1, 12.319738))
pocket11 = body.newObject("PartDesign::Pocket", "Pocket010")
pocket11.Profile = sketch24
pocket11.Type = "UpToFirst"

# Sketch on XY plane
sketch25 = body.newObject("Sketcher::SketchObject", "Sketch024")
sketch25.AttachmentSupport = (doc.getObject("XY_Plane"), [""])
sketch25.MapMode = "FlatFace"
sketch25.AttachmentOffset = App.Placement(Vector(0, 0, 33.191788), App.Rotation())
sketch25.addGeometry(Part.LineSegment(Vector(19, -37, 0), Vector(24, -40, 0)), False)
sketch25.addGeometry(Part.LineSegment(Vector(24, -40, 0), Vector(29, -37, 0)), False)
sketch25.addGeometry(Part.ArcOfCircle(Part.Circle(Vector(24, -27, 0), Vector(0, 0, 1), 12), math.radians(-114), math.radians(-66)), False)
sketch25.addConstraint(Sketcher.Constraint("Coincident", 0, 2, 1, 1))
sketch25.addConstraint(Sketcher.Constraint("Coincident", 1, 2, 2, 2))
sketch25.addConstraint(Sketcher.Constraint("Coincident", 2, 1, 0, 1))
sketch25.addConstraint(Sketcher.Constraint("Horizontal", 1, 2, 2, 1))
sketch25.addConstraint(Sketcher.Constraint("Vertical", 2, 3, 0, 2))
sketch25.addConstraint(Sketcher.Constraint("Radius", 2, 11.5))
sketch25.addConstraint(Sketcher.Constraint("DistanceX", -1, 1, 2, 3, 24.0))
sketch25.addConstraint(Sketcher.Constraint("DistanceY", 0, 2, 2, 3, 13.170858))
sketch25.addConstraint(Sketcher.Constraint("DistanceY", 0, 2, 1, 2, 2.628628))
sketch25.addConstraint(Sketcher.Constraint("DistanceY", 2, 3, -1, 1, 26.616325))
pocket12 = body.newObject("PartDesign::Pocket", "Pocket011")
pocket12.Profile = sketch25
pocket12.Type = "UpToFirst"

doc.recompute()
